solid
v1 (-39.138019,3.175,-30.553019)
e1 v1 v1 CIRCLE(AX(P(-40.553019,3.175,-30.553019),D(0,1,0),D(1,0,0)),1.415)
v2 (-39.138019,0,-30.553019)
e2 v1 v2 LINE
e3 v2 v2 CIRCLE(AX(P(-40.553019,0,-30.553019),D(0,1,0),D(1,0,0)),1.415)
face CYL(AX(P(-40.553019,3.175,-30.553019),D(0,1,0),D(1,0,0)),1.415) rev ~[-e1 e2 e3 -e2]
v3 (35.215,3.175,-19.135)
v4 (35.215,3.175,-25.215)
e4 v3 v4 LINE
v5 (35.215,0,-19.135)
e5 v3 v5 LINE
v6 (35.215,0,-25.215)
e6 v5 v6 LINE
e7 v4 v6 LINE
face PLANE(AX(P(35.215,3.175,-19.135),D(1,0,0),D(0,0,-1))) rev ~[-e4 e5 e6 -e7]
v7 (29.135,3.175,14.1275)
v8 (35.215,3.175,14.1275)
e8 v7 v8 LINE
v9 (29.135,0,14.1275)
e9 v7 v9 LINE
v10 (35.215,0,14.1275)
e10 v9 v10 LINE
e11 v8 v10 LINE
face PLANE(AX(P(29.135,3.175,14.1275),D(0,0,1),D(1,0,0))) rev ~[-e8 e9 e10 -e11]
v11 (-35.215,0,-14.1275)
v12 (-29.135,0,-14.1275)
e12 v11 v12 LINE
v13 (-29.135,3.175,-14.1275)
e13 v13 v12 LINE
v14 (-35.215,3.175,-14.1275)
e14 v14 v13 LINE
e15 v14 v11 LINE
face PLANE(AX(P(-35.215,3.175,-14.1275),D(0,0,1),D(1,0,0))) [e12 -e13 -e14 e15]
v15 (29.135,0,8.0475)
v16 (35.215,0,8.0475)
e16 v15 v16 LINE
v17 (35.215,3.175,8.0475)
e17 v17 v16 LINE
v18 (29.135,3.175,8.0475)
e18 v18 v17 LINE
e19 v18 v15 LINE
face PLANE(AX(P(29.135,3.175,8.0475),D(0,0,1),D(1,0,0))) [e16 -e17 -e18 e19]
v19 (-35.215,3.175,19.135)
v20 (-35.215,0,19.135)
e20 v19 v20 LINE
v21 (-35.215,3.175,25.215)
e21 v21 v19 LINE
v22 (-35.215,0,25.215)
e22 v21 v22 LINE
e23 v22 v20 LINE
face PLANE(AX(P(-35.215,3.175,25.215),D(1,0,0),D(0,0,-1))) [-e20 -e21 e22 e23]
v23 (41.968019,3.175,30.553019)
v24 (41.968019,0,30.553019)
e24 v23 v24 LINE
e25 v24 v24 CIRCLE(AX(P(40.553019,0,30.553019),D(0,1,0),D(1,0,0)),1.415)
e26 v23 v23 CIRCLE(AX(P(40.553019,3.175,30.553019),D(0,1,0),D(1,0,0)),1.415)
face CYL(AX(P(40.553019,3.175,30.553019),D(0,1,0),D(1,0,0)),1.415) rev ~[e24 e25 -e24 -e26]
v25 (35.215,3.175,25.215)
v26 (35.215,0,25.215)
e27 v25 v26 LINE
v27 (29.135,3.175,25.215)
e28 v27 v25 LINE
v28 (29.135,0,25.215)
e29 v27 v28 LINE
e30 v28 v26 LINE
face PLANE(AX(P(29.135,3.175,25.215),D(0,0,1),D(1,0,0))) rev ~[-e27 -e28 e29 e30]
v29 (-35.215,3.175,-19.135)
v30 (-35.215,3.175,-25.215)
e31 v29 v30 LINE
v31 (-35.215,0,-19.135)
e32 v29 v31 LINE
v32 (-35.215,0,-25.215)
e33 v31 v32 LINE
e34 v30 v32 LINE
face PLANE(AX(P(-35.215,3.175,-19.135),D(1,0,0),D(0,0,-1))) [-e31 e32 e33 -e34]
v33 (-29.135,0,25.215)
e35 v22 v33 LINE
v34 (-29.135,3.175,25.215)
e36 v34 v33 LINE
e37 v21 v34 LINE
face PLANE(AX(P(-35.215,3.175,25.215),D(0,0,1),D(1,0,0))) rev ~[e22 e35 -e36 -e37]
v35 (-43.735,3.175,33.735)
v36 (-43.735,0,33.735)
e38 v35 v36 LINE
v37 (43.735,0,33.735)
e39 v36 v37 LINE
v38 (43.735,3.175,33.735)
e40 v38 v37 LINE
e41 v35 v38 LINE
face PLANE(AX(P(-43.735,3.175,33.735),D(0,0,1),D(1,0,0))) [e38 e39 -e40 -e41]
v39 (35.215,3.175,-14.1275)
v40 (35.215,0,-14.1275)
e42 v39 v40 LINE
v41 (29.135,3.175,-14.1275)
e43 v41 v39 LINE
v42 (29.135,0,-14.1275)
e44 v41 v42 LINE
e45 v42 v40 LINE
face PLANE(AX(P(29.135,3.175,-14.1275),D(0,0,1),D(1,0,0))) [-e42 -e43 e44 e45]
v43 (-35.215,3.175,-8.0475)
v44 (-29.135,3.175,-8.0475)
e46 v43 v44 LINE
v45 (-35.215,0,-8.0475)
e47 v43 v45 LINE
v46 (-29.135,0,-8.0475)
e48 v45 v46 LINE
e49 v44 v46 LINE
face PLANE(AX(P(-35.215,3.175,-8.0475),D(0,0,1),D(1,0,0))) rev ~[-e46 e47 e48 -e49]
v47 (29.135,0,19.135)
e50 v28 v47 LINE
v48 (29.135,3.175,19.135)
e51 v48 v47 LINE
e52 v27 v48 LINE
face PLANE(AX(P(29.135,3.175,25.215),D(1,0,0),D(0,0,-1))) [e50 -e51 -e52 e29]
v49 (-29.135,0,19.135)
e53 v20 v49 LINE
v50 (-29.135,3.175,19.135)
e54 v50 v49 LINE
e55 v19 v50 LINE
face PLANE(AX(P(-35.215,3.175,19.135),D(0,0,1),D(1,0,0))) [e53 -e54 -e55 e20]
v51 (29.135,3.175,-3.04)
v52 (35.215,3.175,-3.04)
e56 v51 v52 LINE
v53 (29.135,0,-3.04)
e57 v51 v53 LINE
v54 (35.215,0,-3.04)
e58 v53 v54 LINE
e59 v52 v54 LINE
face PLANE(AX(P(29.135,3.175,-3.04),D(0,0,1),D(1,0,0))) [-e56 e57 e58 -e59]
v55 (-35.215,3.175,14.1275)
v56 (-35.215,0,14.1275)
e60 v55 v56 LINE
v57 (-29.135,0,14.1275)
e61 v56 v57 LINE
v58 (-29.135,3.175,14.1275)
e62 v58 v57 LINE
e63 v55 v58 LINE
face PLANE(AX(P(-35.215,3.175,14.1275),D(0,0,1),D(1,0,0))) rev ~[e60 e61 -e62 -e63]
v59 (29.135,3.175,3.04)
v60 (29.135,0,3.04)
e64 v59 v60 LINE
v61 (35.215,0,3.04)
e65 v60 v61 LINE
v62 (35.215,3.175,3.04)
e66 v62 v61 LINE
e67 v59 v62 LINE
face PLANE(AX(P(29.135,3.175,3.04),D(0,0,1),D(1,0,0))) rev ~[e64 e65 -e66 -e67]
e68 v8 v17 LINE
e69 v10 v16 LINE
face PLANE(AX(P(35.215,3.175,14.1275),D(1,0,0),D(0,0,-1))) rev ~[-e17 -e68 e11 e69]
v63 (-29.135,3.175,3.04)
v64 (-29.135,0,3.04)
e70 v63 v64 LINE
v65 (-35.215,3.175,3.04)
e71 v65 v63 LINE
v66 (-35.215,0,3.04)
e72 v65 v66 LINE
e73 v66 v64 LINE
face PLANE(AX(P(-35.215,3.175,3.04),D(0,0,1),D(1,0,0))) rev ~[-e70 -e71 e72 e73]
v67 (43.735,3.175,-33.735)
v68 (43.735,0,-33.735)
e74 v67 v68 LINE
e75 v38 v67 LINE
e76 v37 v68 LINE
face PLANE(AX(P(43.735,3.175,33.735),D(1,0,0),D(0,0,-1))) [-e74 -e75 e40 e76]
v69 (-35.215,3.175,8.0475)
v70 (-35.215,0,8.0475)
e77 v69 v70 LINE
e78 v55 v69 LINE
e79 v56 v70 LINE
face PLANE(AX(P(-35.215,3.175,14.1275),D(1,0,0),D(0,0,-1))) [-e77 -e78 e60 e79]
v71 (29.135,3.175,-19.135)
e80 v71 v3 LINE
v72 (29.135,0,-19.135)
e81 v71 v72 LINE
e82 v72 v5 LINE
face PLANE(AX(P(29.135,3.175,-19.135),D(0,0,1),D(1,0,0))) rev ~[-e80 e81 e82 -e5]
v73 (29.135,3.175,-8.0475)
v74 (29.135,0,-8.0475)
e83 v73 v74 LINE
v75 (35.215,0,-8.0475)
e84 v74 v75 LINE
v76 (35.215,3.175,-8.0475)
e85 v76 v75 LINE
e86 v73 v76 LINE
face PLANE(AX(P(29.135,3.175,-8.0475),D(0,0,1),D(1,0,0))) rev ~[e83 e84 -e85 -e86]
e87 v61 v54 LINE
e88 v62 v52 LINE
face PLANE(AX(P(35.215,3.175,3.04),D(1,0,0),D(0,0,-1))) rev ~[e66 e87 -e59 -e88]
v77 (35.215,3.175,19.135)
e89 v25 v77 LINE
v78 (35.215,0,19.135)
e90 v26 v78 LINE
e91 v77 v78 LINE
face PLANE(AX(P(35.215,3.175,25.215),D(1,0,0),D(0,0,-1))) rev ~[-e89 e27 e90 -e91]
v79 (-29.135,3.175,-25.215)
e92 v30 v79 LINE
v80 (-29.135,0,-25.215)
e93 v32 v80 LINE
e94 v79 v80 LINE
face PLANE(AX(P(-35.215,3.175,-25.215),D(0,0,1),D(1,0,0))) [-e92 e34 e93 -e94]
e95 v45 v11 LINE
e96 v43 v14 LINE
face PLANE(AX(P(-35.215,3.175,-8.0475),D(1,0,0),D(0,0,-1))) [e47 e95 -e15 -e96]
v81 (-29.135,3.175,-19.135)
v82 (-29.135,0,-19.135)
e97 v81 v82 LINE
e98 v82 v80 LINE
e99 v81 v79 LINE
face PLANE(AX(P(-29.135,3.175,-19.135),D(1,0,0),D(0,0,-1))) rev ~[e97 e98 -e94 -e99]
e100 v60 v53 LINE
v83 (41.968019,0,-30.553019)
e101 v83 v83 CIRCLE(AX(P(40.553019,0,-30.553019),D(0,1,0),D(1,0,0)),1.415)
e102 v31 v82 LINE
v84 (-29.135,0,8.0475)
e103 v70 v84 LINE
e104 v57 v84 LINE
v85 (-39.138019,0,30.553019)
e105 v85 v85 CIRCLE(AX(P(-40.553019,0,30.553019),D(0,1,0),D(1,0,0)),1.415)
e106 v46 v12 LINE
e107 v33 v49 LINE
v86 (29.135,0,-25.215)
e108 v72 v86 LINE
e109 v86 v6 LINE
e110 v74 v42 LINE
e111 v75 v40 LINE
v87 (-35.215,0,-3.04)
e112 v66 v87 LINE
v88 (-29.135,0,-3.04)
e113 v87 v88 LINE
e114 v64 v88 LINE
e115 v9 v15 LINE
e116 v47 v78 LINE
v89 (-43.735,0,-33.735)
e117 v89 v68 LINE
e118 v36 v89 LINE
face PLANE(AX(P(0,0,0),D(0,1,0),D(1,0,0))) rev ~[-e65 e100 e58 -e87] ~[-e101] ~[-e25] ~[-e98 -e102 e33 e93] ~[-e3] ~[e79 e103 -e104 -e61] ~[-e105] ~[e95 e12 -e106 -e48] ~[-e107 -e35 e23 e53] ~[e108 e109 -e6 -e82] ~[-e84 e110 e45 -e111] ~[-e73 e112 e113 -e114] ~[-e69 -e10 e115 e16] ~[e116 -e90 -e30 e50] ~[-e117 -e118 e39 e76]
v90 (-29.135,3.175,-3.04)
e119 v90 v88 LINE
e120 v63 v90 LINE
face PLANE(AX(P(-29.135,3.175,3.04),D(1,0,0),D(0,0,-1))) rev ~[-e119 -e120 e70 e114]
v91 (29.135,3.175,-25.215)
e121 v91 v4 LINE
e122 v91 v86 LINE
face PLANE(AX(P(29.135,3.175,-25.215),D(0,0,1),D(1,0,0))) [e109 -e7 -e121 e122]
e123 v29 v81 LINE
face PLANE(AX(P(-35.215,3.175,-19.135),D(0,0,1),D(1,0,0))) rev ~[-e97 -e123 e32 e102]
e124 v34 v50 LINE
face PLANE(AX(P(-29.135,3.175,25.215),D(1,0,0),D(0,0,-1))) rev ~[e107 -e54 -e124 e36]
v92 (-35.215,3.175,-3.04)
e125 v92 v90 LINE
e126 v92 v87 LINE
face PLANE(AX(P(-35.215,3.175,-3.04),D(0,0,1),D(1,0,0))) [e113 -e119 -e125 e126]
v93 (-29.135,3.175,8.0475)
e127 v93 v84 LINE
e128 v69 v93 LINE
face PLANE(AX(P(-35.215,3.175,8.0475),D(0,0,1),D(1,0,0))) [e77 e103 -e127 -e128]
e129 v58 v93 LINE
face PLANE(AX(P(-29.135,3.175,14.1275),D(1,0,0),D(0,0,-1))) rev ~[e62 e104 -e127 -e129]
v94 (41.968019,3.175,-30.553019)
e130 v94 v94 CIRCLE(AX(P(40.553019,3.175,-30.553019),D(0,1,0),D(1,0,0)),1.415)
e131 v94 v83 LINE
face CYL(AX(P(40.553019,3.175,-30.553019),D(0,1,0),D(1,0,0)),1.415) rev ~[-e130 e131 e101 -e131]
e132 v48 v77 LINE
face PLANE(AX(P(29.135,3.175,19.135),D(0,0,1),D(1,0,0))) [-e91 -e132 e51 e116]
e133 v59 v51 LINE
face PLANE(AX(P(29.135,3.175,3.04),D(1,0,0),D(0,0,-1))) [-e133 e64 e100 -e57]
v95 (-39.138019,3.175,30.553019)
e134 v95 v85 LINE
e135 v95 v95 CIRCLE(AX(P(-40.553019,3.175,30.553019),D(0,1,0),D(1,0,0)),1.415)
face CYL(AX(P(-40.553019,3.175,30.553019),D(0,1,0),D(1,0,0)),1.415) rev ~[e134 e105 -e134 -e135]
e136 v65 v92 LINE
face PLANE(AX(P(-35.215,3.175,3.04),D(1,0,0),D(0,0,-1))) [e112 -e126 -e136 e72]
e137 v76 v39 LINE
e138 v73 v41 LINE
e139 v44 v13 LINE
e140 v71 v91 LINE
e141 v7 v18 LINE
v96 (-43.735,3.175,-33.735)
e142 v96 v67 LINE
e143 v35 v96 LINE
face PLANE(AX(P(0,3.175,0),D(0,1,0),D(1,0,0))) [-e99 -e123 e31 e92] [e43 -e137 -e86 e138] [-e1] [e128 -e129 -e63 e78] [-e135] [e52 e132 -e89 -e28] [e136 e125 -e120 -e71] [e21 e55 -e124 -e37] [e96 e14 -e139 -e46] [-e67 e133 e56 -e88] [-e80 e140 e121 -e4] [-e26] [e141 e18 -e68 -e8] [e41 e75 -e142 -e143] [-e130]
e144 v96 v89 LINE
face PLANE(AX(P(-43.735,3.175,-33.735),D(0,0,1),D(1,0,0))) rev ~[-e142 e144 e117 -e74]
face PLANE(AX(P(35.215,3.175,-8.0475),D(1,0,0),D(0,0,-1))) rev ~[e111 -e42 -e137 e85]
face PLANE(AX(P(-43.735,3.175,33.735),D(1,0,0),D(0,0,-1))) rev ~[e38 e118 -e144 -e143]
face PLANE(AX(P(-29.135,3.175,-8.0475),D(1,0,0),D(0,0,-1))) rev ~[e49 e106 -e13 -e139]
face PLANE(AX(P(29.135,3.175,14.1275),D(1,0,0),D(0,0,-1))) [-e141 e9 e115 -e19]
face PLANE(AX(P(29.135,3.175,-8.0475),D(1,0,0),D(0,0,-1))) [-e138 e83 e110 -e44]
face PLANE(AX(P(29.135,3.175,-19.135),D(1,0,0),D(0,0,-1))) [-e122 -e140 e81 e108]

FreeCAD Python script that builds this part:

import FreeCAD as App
import Part
import Sketcher
from FreeCAD import Vector
Q = App.Units.Quantity


def add_polygon(sketch, points):
    """Adds a closed chain of lines whose ends are joined by coincident constraints."""
    first, n = sketch.GeometryCount, len(points)
    for a, b in zip(points, points[1:] + points[:1]):
        sketch.addGeometry(Part.LineSegment(App.Vector(*a, 0), App.Vector(*b, 0)), False)
    for i in range(n):
        sketch.addConstraint(Sketcher.Constraint("Coincident", first + i, 2, first + (i + 1) % n, 1))

doc = App.newDocument("Part")
body = doc.addObject("PartDesign::Body", "Body")

# Sketch on XZ plane
sketch1 = body.newObject("Sketcher::SketchObject", "Sketch")
sketch1.AttachmentSupport = (doc.getObject("XZ_Plane"), [""])
sketch1.MapMode = "FlatFace"
add_polygon(sketch1, [(-50.085, -40.085), (-50.085, 40.085), (50.085, 40.085), (50.085, -40.085)])  # lines 0-3
sketch1.addConstraint([
    Sketcher.Constraint("Vertical", 0),
    Sketcher.Constraint("Horizontal", 1),
    Sketcher.Constraint("Vertical", 2),
    Sketcher.Constraint("Horizontal", 3),
    Sketcher.Constraint("Symmetric", 0, 2, 2, 2, -1, 1),
    Sketcher.Constraint("DistanceX", 1, 1, 1, 2, Q("100.17 mm")),
    Sketcher.Constraint("DistanceY", 0, 1, 0, 2, Q("80.17 mm")),
])
pad1 = body.newObject("PartDesign::Pad", "Pad")
pad1.Profile = sketch1
pad1.Length = 3.175
pad1.Reversed = True

# Sketch on XZ plane
sketch2 = body.newObject("Sketcher::SketchObject", "Sketch001")
sketch2.AttachmentSupport = (doc.getObject("XZ_Plane"), [""])
sketch2.MapMode = "FlatFace"
sketch2.AttachmentOffset = App.Placement(Vector(0, 0, -3.175), App.Rotation())
add_polygon(sketch2, [(-35.215, -25.215), (-35.215, -19.135), (-29.135, -19.135), (-29.135, -25.215)])  # lines 0-3
add_polygon(sketch2, [(29.135, -25.215), (29.135, -19.135), (35.215, -19.135), (35.215, -25.215)])  # lines 4-7
sketch2.addConstraint([
    Sketcher.Constraint("Vertical", 0),
    Sketcher.Constraint("Horizontal", 1),
    Sketcher.Constraint("Vertical", 2),
    Sketcher.Constraint("Horizontal", 3),
    Sketcher.Constraint("Vertical", 4),
    Sketcher.Constraint("Horizontal", 5),
    Sketcher.Constraint("Vertical", 6),
    Sketcher.Constraint("Horizontal", 7),
    Sketcher.Constraint("Symmetric", 1, 2, 4, 2, -2),
    Sketcher.Constraint("Symmetric", 3, 2, 6, 2, -2),
    Sketcher.Constraint("Equal", 7, 0),
    Sketcher.Constraint("DistanceX", 1, 1, 1, 2, Q("6.08 mm")),
    Sketcher.Constraint("DistanceX", 1, 2, 4, 2, Q("58.27 mm")),
    Sketcher.Constraint("DistanceY", 0, 2, -1, 1, Q("19.135 mm")),
])
pocket1 = body.newObject("PartDesign::Pocket", "Pocket")
pocket1.Profile = sketch2
pocket1.Type = "ThroughAll"
pocket1.Reversed = True
doc.recompute()

linearpattern = body.newObject("PartDesign::LinearPattern", "LinearPattern")
linearpattern.Originals = [pocket1]
linearpattern.Direction = (doc.getObject("Z_Axis"), [""])
linearpattern.Mode = "offset"
linearpattern.Offset = 11.0875
linearpattern.Occurrences = 5
body.Tip = linearpattern

# Sketch on XZ plane
sketch3 = body.newObject("Sketcher::SketchObject", "Sketch002")
sketch3.AttachmentSupport = (doc.getObject("XZ_Plane"), [""])
sketch3.MapMode = "FlatFace"
sketch3.AttachmentOffset = App.Placement(Vector(0, 0, -3.175), App.Rotation())
add_polygon(sketch3, [(-53.735, -43.735), (-53.735, 43.735), (53.735, 43.735), (53.735, -43.735)])  # lines 0-3
add_polygon(sketch3, [(43.735, 33.735), (-43.735, 33.735), (-43.735, -33.735), (43.735, -33.735)])  # lines 4-7
sketch3.addConstraint([
    Sketcher.Constraint("Vertical", 0),
    Sketcher.Constraint("Horizontal", 1),
    Sketcher.Constraint("Vertical", 2),
    Sketcher.Constraint("Horizontal", 3),
    Sketcher.Constraint("Horizontal", 4),
    Sketcher.Constraint("Vertical", 5),
    Sketcher.Constraint("Horizontal", 6),
    Sketcher.Constraint("Vertical", 7),
    Sketcher.Constraint("Symmetric", 0, 2, 2, 2, -1, 1),
    Sketcher.Constraint("Symmetric", 4, 2, 6, 2, -1, 1),
    Sketcher.Constraint("Equal", 6, 0),
    Sketcher.Constraint("DistanceX", 0, 2, 4, 2, Q("10 mm")),
    Sketcher.Constraint("DistanceY", 4, 2, 0, 2, Q("10 mm")),
    Sketcher.Constraint("DistanceX", 1, 1, 1, 2, Q("107.47 mm")),
])
pocket2 = body.newObject("PartDesign::Pocket", "Pocket001")
pocket2.Profile = sketch3
pocket2.Length = 10
pocket2.Reversed = True

# Sketch on XZ plane
sketch4 = body.newObject("Sketcher::SketchObject", "Sketch003")
sketch4.AttachmentSupport = (doc.getObject("XZ_Plane"), [""])
sketch4.MapMode = "FlatFace"
sketch4.AttachmentOffset = App.Placement(Vector(0, 0, -3.175), App.Rotation())
sketch4.addGeometry([
    Part.Circle(Vector(-40.553019, -30.553019, 0), Vector(0, 0, 1), 1.415),
    Part.Circle(Vector(-40.553019, 30.553019, 0), Vector(0, 0, 1), 1.415),
    Part.Circle(Vector(40.553019, 30.553019, 0), Vector(0, 0, 1), 1.415),
    Part.Circle(Vector(40.553019, -30.553019, 0), Vector(0, 0, 1), 1.415),
], False)
sketch4.addConstraint([
    Sketcher.Constraint("Equal", 0, 1),
    Sketcher.Constraint("Equal", 1, 2),
    Sketcher.Constraint("Equal", 2, 3),
    Sketcher.Constraint("Symmetric", 0, 3, 2, 3, -1, 1),
    Sketcher.Constraint("Symmetric", 1, 3, 3, 3, -1, 1),
    Sketcher.Constraint("Symmetric", 1, 3, 2, 3, -2),
    Sketcher.Constraint("Diameter", 0, Q("2.83 mm")),
    Sketcher.Constraint("DistanceX", 0, 3, -1, 1, Q("40.553019 mm")),
    Sketcher.Constraint("DistanceY", 0, 3, -1, 1, Q("30.553019 mm")),
])
pocket3 = body.newObject("PartDesign::Pocket", "Pocket002")
pocket3.Profile = sketch4
pocket3.Length = 10
pocket3.Reversed = True

doc.recompute()
